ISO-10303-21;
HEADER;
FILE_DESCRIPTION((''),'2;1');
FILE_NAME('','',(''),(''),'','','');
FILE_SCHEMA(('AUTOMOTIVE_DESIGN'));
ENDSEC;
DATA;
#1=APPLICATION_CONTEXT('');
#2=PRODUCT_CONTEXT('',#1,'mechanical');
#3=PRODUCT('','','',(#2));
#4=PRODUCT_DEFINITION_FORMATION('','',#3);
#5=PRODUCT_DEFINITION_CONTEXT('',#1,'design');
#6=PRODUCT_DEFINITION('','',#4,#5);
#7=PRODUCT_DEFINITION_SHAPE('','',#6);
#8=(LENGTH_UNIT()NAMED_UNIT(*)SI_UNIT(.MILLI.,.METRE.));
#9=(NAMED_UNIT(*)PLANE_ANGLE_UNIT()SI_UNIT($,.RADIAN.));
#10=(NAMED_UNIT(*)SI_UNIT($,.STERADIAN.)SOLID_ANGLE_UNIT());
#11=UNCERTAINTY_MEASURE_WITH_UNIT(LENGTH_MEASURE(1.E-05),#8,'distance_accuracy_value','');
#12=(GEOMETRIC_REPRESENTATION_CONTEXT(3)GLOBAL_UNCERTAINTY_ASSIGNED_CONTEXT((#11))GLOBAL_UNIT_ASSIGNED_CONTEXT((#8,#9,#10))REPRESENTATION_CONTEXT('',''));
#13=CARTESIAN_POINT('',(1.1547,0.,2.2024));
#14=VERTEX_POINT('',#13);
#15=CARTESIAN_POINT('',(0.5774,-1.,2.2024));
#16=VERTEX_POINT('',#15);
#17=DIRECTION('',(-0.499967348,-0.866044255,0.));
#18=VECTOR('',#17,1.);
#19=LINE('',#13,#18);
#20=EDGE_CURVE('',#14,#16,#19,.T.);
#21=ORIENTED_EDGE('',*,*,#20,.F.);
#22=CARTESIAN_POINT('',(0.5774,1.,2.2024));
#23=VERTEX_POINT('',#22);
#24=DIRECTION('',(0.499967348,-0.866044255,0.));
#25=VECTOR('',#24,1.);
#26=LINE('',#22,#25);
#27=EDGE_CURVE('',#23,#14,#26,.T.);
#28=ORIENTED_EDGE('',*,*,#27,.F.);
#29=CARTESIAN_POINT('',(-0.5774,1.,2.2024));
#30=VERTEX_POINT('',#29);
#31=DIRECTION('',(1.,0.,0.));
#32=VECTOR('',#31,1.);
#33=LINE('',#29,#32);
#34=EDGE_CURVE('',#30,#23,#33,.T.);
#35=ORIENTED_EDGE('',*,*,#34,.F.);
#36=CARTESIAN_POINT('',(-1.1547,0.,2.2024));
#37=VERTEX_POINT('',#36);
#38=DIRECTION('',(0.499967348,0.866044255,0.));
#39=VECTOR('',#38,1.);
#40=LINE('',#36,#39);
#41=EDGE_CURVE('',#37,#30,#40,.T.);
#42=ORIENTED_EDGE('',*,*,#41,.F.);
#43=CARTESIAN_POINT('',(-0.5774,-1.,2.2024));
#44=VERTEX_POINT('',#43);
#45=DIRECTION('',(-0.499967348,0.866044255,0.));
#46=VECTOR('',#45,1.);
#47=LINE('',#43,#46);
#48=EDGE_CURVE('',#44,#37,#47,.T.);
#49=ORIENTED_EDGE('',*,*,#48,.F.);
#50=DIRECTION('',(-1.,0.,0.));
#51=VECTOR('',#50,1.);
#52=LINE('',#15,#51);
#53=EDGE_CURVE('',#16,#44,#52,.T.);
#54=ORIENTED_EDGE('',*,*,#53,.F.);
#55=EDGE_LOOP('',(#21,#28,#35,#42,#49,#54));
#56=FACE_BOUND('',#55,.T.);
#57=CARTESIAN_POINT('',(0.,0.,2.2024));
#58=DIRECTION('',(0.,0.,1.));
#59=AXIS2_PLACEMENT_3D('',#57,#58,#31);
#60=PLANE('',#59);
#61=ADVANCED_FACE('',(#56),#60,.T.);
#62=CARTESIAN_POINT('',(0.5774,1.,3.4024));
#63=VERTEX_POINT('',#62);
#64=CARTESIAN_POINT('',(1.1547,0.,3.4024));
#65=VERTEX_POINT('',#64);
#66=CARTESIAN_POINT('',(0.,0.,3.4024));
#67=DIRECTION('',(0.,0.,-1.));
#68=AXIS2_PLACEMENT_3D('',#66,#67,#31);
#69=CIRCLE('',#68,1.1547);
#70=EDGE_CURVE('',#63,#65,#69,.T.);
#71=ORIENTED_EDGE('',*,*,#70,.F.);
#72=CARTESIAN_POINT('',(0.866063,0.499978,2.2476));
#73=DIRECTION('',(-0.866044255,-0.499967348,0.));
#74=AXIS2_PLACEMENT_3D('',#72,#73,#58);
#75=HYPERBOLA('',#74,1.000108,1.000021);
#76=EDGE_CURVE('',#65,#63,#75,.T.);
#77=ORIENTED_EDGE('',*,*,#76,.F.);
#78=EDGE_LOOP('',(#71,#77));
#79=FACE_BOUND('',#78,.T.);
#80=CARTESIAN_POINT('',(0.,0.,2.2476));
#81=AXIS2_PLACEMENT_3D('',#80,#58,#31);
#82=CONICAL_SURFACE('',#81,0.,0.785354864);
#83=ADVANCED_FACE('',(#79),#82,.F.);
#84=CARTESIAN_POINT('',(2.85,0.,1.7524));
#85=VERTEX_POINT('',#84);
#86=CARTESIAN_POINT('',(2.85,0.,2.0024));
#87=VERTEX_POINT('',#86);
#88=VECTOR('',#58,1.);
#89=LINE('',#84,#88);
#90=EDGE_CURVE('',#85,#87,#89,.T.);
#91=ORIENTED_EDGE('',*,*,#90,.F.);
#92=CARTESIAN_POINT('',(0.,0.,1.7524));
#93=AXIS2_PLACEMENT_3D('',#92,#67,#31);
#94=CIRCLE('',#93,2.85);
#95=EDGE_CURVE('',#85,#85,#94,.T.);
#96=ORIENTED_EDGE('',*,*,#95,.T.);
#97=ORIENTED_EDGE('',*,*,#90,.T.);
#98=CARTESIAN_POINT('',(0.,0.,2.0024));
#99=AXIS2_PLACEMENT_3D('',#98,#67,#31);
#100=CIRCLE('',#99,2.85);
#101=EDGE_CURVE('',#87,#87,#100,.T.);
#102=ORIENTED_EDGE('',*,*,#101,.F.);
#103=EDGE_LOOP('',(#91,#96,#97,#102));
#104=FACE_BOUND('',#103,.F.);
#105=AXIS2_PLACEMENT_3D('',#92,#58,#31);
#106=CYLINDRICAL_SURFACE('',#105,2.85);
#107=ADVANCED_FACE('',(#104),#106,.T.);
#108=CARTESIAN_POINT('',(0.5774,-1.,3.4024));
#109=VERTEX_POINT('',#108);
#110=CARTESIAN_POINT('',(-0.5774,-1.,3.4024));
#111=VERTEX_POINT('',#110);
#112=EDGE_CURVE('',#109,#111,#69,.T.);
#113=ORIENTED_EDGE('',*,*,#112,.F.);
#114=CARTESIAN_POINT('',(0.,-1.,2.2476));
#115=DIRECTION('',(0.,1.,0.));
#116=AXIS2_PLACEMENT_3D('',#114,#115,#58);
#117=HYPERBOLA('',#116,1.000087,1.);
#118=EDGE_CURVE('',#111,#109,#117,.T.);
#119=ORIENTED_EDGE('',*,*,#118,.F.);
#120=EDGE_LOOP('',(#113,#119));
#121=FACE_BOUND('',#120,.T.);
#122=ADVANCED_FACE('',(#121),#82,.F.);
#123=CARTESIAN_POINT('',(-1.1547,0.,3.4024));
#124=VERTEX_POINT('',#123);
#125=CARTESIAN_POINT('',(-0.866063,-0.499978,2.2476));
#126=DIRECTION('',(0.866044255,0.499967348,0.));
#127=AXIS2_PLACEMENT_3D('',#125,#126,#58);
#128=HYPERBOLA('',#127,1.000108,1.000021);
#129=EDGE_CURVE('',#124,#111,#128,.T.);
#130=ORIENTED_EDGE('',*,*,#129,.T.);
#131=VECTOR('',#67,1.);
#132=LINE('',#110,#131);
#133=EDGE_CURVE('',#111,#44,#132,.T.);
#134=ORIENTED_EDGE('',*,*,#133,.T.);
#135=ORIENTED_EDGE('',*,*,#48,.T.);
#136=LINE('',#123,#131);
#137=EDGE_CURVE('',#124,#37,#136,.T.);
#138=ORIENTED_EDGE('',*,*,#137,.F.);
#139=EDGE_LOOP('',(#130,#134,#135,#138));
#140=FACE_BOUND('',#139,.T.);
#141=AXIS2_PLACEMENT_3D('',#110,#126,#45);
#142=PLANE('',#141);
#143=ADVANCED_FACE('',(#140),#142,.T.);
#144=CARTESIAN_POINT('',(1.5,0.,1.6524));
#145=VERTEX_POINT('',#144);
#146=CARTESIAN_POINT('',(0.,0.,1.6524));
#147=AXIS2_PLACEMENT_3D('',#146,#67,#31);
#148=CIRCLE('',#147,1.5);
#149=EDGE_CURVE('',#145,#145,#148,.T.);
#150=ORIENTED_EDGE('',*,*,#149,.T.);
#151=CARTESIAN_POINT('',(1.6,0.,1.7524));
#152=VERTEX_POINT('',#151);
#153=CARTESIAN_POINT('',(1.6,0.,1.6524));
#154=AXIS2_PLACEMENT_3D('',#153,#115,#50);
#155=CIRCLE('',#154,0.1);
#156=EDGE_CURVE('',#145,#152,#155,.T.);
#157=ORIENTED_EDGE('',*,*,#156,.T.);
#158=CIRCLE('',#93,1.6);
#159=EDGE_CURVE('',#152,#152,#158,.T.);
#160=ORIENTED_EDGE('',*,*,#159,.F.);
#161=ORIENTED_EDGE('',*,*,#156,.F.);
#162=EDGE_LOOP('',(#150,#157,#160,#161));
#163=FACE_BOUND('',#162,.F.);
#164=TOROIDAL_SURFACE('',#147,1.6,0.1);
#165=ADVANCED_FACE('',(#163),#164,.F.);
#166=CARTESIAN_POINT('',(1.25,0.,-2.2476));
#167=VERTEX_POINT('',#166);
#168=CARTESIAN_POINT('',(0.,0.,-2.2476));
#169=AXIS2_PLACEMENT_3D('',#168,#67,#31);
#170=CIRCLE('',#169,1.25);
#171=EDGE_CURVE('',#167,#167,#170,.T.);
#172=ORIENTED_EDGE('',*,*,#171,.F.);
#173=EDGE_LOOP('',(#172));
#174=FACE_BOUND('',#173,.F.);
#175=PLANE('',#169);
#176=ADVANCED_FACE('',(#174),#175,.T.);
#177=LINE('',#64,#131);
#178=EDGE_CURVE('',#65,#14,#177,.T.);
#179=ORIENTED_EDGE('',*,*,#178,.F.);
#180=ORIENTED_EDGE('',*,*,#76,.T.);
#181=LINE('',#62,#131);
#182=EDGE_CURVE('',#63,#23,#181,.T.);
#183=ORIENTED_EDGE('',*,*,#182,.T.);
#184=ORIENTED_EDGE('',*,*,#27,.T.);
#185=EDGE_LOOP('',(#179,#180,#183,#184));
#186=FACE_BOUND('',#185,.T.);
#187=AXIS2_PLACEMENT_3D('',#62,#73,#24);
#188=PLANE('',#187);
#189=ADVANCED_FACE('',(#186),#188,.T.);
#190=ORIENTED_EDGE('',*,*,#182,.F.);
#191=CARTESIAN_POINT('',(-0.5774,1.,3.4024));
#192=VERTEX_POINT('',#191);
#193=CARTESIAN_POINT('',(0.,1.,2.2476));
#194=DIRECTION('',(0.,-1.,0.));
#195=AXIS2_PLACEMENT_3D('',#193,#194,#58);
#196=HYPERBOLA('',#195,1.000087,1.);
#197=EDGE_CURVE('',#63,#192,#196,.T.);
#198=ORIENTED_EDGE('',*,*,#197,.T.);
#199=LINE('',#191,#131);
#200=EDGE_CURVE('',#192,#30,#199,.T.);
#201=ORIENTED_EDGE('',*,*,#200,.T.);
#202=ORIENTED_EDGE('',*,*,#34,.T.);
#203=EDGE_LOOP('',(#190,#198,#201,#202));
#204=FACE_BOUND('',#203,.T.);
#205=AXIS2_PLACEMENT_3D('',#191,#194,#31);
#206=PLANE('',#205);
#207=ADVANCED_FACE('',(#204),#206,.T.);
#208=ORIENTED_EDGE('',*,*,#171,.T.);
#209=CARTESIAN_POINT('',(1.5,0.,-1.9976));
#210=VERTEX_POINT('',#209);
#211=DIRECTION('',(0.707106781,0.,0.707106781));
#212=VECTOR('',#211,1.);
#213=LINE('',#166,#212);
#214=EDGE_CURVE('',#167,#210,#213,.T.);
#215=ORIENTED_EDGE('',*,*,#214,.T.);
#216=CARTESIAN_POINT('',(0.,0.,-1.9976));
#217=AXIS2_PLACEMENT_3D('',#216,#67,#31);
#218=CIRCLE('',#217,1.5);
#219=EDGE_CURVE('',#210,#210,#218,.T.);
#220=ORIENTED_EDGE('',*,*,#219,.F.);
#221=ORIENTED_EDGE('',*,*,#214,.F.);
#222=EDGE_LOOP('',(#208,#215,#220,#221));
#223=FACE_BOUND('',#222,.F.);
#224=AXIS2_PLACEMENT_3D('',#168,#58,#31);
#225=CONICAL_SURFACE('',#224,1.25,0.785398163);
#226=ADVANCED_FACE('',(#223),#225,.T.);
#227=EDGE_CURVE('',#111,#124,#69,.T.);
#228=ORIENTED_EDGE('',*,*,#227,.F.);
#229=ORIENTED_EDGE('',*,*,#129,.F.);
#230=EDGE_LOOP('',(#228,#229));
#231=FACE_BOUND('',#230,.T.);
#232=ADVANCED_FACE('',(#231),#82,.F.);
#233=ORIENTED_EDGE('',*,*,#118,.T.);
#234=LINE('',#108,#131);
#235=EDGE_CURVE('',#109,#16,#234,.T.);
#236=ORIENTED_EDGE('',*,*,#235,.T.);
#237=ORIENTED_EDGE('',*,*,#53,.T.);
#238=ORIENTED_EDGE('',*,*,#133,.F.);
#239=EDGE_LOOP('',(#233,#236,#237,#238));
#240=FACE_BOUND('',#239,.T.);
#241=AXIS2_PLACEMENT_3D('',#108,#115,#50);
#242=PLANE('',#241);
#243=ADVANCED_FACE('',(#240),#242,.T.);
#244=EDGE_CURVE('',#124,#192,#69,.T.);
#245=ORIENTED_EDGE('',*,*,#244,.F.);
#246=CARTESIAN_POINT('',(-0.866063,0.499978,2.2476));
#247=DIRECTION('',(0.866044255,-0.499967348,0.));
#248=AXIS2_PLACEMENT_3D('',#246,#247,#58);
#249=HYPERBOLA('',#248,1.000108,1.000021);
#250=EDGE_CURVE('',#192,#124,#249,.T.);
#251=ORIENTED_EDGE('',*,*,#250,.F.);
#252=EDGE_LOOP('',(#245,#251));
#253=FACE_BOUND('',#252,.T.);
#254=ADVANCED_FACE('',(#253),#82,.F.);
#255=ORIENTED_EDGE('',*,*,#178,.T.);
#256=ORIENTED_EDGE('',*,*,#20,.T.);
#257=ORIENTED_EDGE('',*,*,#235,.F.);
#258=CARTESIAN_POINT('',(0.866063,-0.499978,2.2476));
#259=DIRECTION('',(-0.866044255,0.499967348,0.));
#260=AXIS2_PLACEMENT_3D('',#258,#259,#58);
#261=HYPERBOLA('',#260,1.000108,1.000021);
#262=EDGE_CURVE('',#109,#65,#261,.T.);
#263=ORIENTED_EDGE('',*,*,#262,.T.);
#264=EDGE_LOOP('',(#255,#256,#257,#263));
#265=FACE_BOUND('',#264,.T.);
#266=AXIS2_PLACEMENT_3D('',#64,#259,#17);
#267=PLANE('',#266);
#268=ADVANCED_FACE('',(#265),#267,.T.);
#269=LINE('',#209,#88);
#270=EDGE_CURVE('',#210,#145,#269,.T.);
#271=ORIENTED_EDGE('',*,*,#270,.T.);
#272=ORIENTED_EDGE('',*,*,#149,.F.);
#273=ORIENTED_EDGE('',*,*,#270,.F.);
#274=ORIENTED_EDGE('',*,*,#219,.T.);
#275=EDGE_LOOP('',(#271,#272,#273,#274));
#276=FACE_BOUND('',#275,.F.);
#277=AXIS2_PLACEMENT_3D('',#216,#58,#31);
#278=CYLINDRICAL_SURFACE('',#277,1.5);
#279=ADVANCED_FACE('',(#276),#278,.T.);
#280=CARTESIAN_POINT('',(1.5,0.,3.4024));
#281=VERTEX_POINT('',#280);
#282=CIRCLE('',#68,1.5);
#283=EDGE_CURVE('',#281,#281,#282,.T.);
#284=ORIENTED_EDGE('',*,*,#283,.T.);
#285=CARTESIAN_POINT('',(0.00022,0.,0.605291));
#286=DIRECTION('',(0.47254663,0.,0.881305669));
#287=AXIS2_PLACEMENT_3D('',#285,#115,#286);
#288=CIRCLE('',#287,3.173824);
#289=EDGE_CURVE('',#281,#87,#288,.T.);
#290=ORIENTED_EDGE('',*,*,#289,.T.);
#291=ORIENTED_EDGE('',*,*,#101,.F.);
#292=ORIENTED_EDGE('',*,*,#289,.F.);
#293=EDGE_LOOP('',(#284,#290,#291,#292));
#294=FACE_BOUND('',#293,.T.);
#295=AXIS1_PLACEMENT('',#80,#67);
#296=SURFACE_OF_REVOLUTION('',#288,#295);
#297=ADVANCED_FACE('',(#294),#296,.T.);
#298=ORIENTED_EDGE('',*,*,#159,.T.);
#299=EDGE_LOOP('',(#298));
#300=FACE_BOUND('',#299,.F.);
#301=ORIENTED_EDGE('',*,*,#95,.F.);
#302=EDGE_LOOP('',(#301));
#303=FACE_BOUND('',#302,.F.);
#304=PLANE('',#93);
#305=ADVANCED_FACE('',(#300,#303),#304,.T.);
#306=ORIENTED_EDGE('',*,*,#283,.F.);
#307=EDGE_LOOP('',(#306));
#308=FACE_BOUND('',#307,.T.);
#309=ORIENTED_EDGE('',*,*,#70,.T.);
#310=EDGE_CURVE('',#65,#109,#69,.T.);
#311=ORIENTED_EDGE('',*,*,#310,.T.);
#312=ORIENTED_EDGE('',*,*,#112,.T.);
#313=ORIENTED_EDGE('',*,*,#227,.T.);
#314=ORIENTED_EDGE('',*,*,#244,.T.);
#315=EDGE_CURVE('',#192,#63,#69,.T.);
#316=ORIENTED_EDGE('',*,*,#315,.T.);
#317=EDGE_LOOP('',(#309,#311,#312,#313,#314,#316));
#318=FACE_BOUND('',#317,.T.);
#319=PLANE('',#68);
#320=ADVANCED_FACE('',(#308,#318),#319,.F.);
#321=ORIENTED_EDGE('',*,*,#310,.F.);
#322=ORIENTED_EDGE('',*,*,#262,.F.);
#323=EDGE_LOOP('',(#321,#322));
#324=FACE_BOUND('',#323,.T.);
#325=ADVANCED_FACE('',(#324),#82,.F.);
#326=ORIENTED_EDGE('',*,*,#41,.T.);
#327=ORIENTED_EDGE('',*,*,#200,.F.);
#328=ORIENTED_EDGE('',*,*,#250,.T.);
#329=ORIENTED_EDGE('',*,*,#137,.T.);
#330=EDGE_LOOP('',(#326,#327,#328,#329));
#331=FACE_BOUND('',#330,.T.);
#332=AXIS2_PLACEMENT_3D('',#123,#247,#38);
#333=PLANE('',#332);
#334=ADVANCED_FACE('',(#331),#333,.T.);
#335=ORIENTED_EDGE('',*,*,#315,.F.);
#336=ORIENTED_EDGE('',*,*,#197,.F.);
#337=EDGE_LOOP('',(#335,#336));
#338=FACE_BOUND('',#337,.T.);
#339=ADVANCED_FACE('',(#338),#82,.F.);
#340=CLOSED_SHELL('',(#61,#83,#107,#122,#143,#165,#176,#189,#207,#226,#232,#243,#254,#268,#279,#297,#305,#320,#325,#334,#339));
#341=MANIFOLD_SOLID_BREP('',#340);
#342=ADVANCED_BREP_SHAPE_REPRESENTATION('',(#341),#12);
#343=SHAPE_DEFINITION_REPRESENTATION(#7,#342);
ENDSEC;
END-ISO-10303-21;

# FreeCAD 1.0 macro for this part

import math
import FreeCAD as App
import Part
import Sketcher
Q = App.Units.Quantity

doc = App.newDocument("Part")
body = doc.addObject("PartDesign::Body", "Body")

sketch1 = body.newObject("Sketcher::SketchObject", "Sketch")
sketch1.AttachmentSupport = (doc.getObject("XZ_Plane"), [""])
sketch1.MapMode = "FlatFace"
sketch1.addGeometry([
    Part.LineSegment(App.Vector(0, -2.25, 0), App.Vector(0, 2.25, 0)),
    Part.LineSegment(App.Vector(0, 2.25, 0), App.Vector(1.15, 3.4, 0)),
    Part.LineSegment(App.Vector(1.15, 3.4, 0), App.Vector(1.5, 3.4, 0)),
    Part.ArcOfCircle(Part.Circle(App.Vector(0, 0.6, 0), App.Vector(0, 0, 1), 3.17), math.radians(26), math.radians(62)),
    Part.LineSegment(App.Vector(2.85, 2, 0), App.Vector(2.85, 1.75, 0)),
    Part.LineSegment(App.Vector(2.85, 1.75, 0), App.Vector(1.6, 1.75, 0)),
    Part.ArcOfCircle(Part.Circle(App.Vector(1.6, 1.65, 0), App.Vector(0, 0, 1), 0.1), math.radians(90), math.radians(180)),
    Part.LineSegment(App.Vector(1.5, 1.65, 0), App.Vector(1.5, -2, 0)),
    Part.LineSegment(App.Vector(1.5, -2, 0), App.Vector(1.25, -2.25, 0)),
    Part.LineSegment(App.Vector(1.25, -2.25, 0), App.Vector(0, -2.25, 0)),
], False)
sketch1.addConstraint([
    Sketcher.Constraint("Coincident", 0, 2, 1, 1),
    Sketcher.Constraint("Coincident", 1, 2, 2, 1),
    Sketcher.Constraint("Coincident", 2, 2, 3, 2),
    Sketcher.Constraint("Coincident", 3, 1, 4, 1),
    Sketcher.Constraint("Coincident", 4, 2, 5, 1),
    Sketcher.Constraint("Tangent", 5, 2, 6, 1),
    Sketcher.Constraint("Tangent", 6, 2, 7, 1),
    Sketcher.Constraint("Coincident", 7, 2, 8, 1),
    Sketcher.Constraint("Coincident", 8, 2, 9, 1),
    Sketcher.Constraint("Coincident", 9, 2, 0, 1),
    Sketcher.Constraint("Vertical", 0),
    Sketcher.Constraint("Horizontal", 2),
    Sketcher.Constraint("Vertical", 4),
    Sketcher.Constraint("Horizontal", 5),
    Sketcher.Constraint("Vertical", 7),
    Sketcher.Constraint("Horizontal", 9),
    Sketcher.Constraint("Symmetric", 0, 2, 9, 2, -1, 1),
    Sketcher.Constraint("PointOnObject", 3, 3, -2),
    Sketcher.Constraint("Parallel", 1, 8),
    Sketcher.Constraint("Vertical", 2, 2, 6, 2),
    Sketcher.Constraint("Equal", 5, 9),
    Sketcher.Constraint("Angle", 8, Q("-135 deg")),
    Sketcher.Constraint("DistanceY", 8, 2, 5, 2, Q("4 mm")),
    Sketcher.Constraint("DistanceY", 4, 2, 4, 1, Q("0.25 mm")),
    Sketcher.Constraint("Radius", 6, Q("0.1 mm")),
    Sketcher.Constraint("DistanceY", 4, 2, 2, 2, Q("1.65 mm")),
    Sketcher.Constraint("DistanceX", 8, 2, 7, 2, Q("0.25 mm")),
    Sketcher.Constraint("DistanceX", 5, 2, 5, 1, Q("1.25 mm")),
    Sketcher.Constraint("Distance", 1, Q("1.633 mm")),
])
revolution = body.newObject("PartDesign::Revolution", "Revolution")
revolution.Profile = sketch1
revolution.ReferenceAxis = (sketch1, ["V_Axis"])
revolution.Angle = 360

sketch2 = body.newObject("Sketcher::SketchObject", "Sketch001")
sketch2.AttachmentSupport = (doc.getObject("XY_Plane"), [""])
sketch2.MapMode = "FlatFace"
sketch2.AttachmentOffset = App.Placement(App.Vector(0, 0, 3.4024), App.Rotation())
sketch2.addGeometry([
    Part.LineSegment(App.Vector(0.6, -1, 0), App.Vector(1.2, 0, 0)),
    Part.LineSegment(App.Vector(1.2, 0, 0), App.Vector(0.6, 1, 0)),
    Part.LineSegment(App.Vector(0.6, 1, 0), App.Vector(-0.6, 1, 0)),
    Part.LineSegment(App.Vector(-0.6, 1, 0), App.Vector(-1.2, 0, 0)),
    Part.LineSegment(App.Vector(-1.2, 0, 0), App.Vector(-0.6, -1, 0)),
    Part.LineSegment(App.Vector(-0.6, -1, 0), App.Vector(0.6, -1, 0)),
], False)
sketch2.addConstraint([
    Sketcher.Constraint("Coincident", 0, 2, 1, 1),
    Sketcher.Constraint("Coincident", 1, 2, 2, 1),
    Sketcher.Constraint("Coincident", 2, 2, 3, 1),
    Sketcher.Constraint("Coincident", 3, 2, 4, 1),
    Sketcher.Constraint("Coincident", 4, 2, 5, 1),
    Sketcher.Constraint("Coincident", 5, 2, 0, 1),
    Sketcher.Constraint("Horizontal", 2),
    Sketcher.Constraint("Horizontal", 5),
    Sketcher.Constraint("Symmetric", 0, 2, 3, 2, -1, 1),
    Sketcher.Constraint("Symmetric", 1, 2, 4, 2, -1, 1),
    Sketcher.Constraint("PointOnObject", 0, 2, -1),
    Sketcher.Constraint("Parallel", 0, 3),
    Sketcher.Constraint("Vertical", 2, 2, 4, 2),
    Sketcher.Constraint("DistanceY", -1, 1, 1, 2, Q("1 mm")),
    Sketcher.Constraint("DistanceX", 2, 2, 2, 1, Q("1.1548 mm")),
    Sketcher.Constraint("DistanceX", 2, 2, 0, 2, Q("1.732 mm")),
])
pocket1 = body.newObject("PartDesign::Pocket", "Pocket")
pocket1.Profile = sketch2
pocket1.Length = 1.2

doc.recompute()
